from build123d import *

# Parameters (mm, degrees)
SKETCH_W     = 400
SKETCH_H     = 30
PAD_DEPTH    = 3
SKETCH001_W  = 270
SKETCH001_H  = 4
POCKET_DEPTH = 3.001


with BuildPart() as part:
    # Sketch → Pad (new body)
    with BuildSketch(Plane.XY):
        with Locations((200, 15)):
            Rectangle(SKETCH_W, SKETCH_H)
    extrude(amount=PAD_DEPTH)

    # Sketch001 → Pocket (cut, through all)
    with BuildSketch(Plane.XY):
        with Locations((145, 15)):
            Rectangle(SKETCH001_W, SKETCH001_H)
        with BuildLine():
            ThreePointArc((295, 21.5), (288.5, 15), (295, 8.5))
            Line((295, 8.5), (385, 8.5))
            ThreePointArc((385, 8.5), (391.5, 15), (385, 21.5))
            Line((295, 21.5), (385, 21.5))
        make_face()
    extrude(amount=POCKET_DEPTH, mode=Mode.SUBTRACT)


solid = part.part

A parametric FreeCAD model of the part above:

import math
import FreeCAD as App
import Part
import Sketcher
Q = App.Units.Quantity


def add_polygon(sketch, points):
    """Adds a closed chain of lines whose ends are joined by coincident constraints."""
    first, n = sketch.GeometryCount, len(points)
    for a, b in zip(points, points[1:] + points[:1]):
        sketch.addGeometry(Part.LineSegment(App.Vector(*a, 0), App.Vector(*b, 0)), False)
    for i in range(n):
        sketch.addConstraint(Sketcher.Constraint("Coincident", first + i, 2, first + (i + 1) % n, 1))

doc = App.newDocument("Part")
body = doc.addObject("PartDesign::Body", "Body")

# Sketch on XY plane
sketch1 = doc.addObject("Sketcher::SketchObject", "Sketch")
body.addObject(sketch1)
sketch1.AttachmentSupport = (doc.XY_Plane, [""])
sketch1.MapMode = "FlatFace"
add_polygon(sketch1, [(0, 30), (0, 0), (400, 0), (400, 30)])  # lines 0-3
sketch1.addConstraint(Sketcher.Constraint("Vertical", 0))
sketch1.addConstraint(Sketcher.Constraint("Horizontal", 1))
sketch1.addConstraint(Sketcher.Constraint("Vertical", 2))
sketch1.addConstraint(Sketcher.Constraint("Horizontal", 3))
sketch1.addConstraint(Sketcher.Constraint("Coincident", 0, 2, -1, 1))
sketch1.addConstraint(Sketcher.Constraint("DistanceX", 1, 1, 1, 2, Q("400 mm")))
sketch1.addConstraint(Sketcher.Constraint("DistanceY", 0, 2, 0, 1, Q("30 mm")))
pad1 = doc.addObject("PartDesign::Pad", "Pad")
body.addObject(pad1)
pad1.Profile = sketch1
pad1.Length = 3

# Sketch on XY plane
sketch2 = doc.addObject("Sketcher::SketchObject", "Sketch001")
body.addObject(sketch2)
sketch2.AttachmentSupport = (doc.XY_Plane, [""])
sketch2.MapMode = "FlatFace"
add_polygon(sketch2, [(10, 17), (10, 13), (280, 13), (280, 17)])  # lines 0-3
sketch2.addGeometry(Part.ArcOfCircle(Part.Circle(App.Vector(295, 15, 0), App.Vector(0, 0, 1), 6.5), math.radians(90), math.radians(270)), False)  # 4
sketch2.addGeometry(Part.LineSegment(App.Vector(295, 8.5, 0), App.Vector(385, 8.5, 0)), False)  # 5
sketch2.addGeometry(Part.ArcOfCircle(Part.Circle(App.Vector(385, 15, 0), App.Vector(0, 0, 1), 6.5), math.radians(-90), math.radians(90)), False)  # 6
sketch2.addGeometry(Part.LineSegment(App.Vector(385, 21.5, 0), App.Vector(295, 21.5, 0)), False)  # 7
sketch2.addConstraint(Sketcher.Constraint("Tangent", 4, 2, 5, 1))
sketch2.addConstraint(Sketcher.Constraint("Tangent", 5, 2, 6, 1))
sketch2.addConstraint(Sketcher.Constraint("Tangent", 6, 2, 7, 1))
sketch2.addConstraint(Sketcher.Constraint("Tangent", 7, 2, 4, 1))
sketch2.addConstraint(Sketcher.Constraint("Vertical", 0))
sketch2.addConstraint(Sketcher.Constraint("Horizontal", 1))
sketch2.addConstraint(Sketcher.Constraint("Vertical", 2))
sketch2.addConstraint(Sketcher.Constraint("Horizontal", 3))
sketch2.addConstraint(Sketcher.Constraint("Horizontal", 5))
sketch2.addConstraint(Sketcher.Constraint("Horizontal", 7))
sketch2.addConstraint(Sketcher.Constraint("Radius", 4, Q("6.5 mm")))
sketch2.addConstraint(Sketcher.Constraint("DistanceX", 1, 1, 1, 2, Q("270 mm")))
sketch2.addConstraint(Sketcher.Constraint("DistanceX", 5, 1, 5, 2, Q("90 mm")))
sketch2.addConstraint(Sketcher.Constraint("DistanceY", 0, 2, 0, 1, Q("4 mm")))
sketch2.addConstraint(Sketcher.Constraint("DistanceX", -1, 1, 4, 3, Q("295 mm")))
sketch2.addConstraint(Sketcher.Constraint("DistanceY", -1, 1, 4, 3, Q("15 mm")))
sketch2.addConstraint(Sketcher.Constraint("DistanceX", -1, 1, 0, 2, Q("10 mm")))
sketch2.addConstraint(Sketcher.Constraint("DistanceY", -1, 1, 0, 2, Q("13 mm")))
pocket1 = doc.addObject("PartDesign::Pocket", "Pocket")
body.addObject(pocket1)
pocket1.Profile = sketch2
pocket1.Type = "ThroughAll"
pocket1.Reversed = True

doc.recompute()
